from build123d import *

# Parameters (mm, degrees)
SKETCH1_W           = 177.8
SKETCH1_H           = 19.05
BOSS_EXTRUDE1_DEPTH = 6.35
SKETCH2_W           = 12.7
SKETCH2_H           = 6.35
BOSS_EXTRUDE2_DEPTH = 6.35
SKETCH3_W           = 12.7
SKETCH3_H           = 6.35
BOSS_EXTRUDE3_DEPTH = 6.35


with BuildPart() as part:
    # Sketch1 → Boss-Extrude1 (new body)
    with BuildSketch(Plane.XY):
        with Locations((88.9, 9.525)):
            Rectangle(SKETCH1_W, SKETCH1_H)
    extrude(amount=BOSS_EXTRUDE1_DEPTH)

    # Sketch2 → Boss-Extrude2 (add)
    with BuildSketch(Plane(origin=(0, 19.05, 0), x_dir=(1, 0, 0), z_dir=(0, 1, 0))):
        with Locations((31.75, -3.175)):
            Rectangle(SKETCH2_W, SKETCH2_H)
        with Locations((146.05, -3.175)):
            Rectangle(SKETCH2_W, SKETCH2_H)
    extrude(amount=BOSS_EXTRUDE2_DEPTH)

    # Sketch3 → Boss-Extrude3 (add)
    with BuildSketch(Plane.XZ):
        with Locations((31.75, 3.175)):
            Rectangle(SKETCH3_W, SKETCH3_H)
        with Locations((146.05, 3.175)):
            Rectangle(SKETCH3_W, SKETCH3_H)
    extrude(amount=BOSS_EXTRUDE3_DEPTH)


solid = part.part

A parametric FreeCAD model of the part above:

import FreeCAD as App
import Part
import Sketcher

V = App.Vector
Q = App.Units.Quantity

doc = App.newDocument("Part")
body = doc.addObject("PartDesign::Body", "Body")

sketch1 = body.newObject("Sketcher::SketchObject", "Sketch")
sketch1.AttachmentSupport = (doc.getObject("XY_Plane"), [""])
sketch1.MapMode = "FlatFace"
sketch1.addGeometry(Part.LineSegment(V(0, 19, 0), V(0, 0, 0)), False)
sketch1.addGeometry(Part.LineSegment(V(0, 0, 0), V(178, 0, 0)), False)
sketch1.addGeometry(Part.LineSegment(V(178, 0, 0), V(178, 19, 0)), False)
sketch1.addGeometry(Part.LineSegment(V(178, 19, 0), V(0, 19, 0)), False)
sketch1.addConstraint(Sketcher.Constraint("Coincident", 0, 2, 1, 1))
sketch1.addConstraint(Sketcher.Constraint("Coincident", 1, 2, 2, 1))
sketch1.addConstraint(Sketcher.Constraint("Coincident", 2, 2, 3, 1))
sketch1.addConstraint(Sketcher.Constraint("Coincident", 3, 2, 0, 1))
sketch1.addConstraint(Sketcher.Constraint("Vertical", 0))
sketch1.addConstraint(Sketcher.Constraint("Horizontal", 1))
sketch1.addConstraint(Sketcher.Constraint("Vertical", 2))
sketch1.addConstraint(Sketcher.Constraint("Horizontal", 3))
sketch1.addConstraint(Sketcher.Constraint("Coincident", 0, 2, -1, 1))
sketch1.addConstraint(Sketcher.Constraint("DistanceX", 1, 1, 1, 2, Q("7 in")))
sketch1.addConstraint(Sketcher.Constraint("DistanceY", 0, 2, 0, 1, Q("0.75 in")))
pad1 = body.newObject("PartDesign::Pad", "Pad")
pad1.Profile = sketch1
pad1.Length = Q("0.25 in")

sketch2 = body.newObject("Sketcher::SketchObject", "Sketch001")
sketch2.AttachmentSupport = (doc.getObject("XZ_Plane"), [""])
sketch2.MapMode = "FlatFace"
sketch2.AttachmentOffset = App.Placement(V(0, 0, -0.75 * 25.4), App.Rotation())
sketch2.addGeometry(Part.LineSegment(V(25, 0, 0), V(25, 6, 0)), False)
sketch2.addGeometry(Part.LineSegment(V(25, 6, 0), V(38, 6, 0)), False)
sketch2.addGeometry(Part.LineSegment(V(38, 6, 0), V(38, 0, 0)), False)
sketch2.addGeometry(Part.LineSegment(V(38, 0, 0), V(25, 0, 0)), False)
sketch2.addGeometry(Part.LineSegment(V(140, 0, 0), V(140, 6, 0)), False)
sketch2.addGeometry(Part.LineSegment(V(140, 6, 0), V(152, 6, 0)), False)
sketch2.addGeometry(Part.LineSegment(V(152, 6, 0), V(152, 0, 0)), False)
sketch2.addGeometry(Part.LineSegment(V(152, 0, 0), V(140, 0, 0)), False)
sketch2.addConstraint(Sketcher.Constraint("Coincident", 0, 2, 1, 1))
sketch2.addConstraint(Sketcher.Constraint("Coincident", 1, 2, 2, 1))
sketch2.addConstraint(Sketcher.Constraint("Coincident", 2, 2, 3, 1))
sketch2.addConstraint(Sketcher.Constraint("Coincident", 3, 2, 0, 1))
sketch2.addConstraint(Sketcher.Constraint("Coincident", 4, 2, 5, 1))
sketch2.addConstraint(Sketcher.Constraint("Coincident", 5, 2, 6, 1))
sketch2.addConstraint(Sketcher.Constraint("Coincident", 6, 2, 7, 1))
sketch2.addConstraint(Sketcher.Constraint("Coincident", 7, 2, 4, 1))
sketch2.addConstraint(Sketcher.Constraint("Vertical", 0))
sketch2.addConstraint(Sketcher.Constraint("Horizontal", 1))
sketch2.addConstraint(Sketcher.Constraint("Vertical", 2))
sketch2.addConstraint(Sketcher.Constraint("Horizontal", 3))
sketch2.addConstraint(Sketcher.Constraint("Vertical", 4))
sketch2.addConstraint(Sketcher.Constraint("Horizontal", 5))
sketch2.addConstraint(Sketcher.Constraint("Vertical", 6))
sketch2.addConstraint(Sketcher.Constraint("Horizontal", 7))
sketch2.addConstraint(Sketcher.Constraint("PointOnObject", 2, 2, -1))
sketch2.addConstraint(Sketcher.Constraint("PointOnObject", 6, 2, -1))
sketch2.addConstraint(Sketcher.Constraint("Horizontal", 1, 2, 4, 2))
sketch2.addConstraint(Sketcher.Constraint("Equal", 3, 5))
sketch2.addConstraint(Sketcher.Constraint("DistanceX", 1, 1, 1, 2, Q("0.5 in")))
sketch2.addConstraint(Sketcher.Constraint("DistanceX", -1, 1, 0, 2, Q("1 in")))
sketch2.addConstraint(Sketcher.Constraint("DistanceX", -1, 1, 5, 2, Q("6 in")))
sketch2.addConstraint(Sketcher.Constraint("DistanceY", 0, 1, 0, 2, Q("0.25 in")))
pad2 = body.newObject("PartDesign::Pad", "Pad001")
pad2.Profile = sketch2
pad2.Length = Q("0.25 in")
pad2.Reversed = True

sketch3 = body.newObject("Sketcher::SketchObject", "Sketch002")
sketch3.AttachmentSupport = (doc.getObject("XZ_Plane"), [""])
sketch3.MapMode = "FlatFace"
sketch3.addGeometry(Part.LineSegment(V(25, 6, 0), V(25, 0, 0)), False)
sketch3.addGeometry(Part.LineSegment(V(25, 0, 0), V(38, 0, 0)), False)
sketch3.addGeometry(Part.LineSegment(V(38, 0, 0), V(38, 6, 0)), False)
sketch3.addGeometry(Part.LineSegment(V(38, 6, 0), V(25, 6, 0)), False)
sketch3.addGeometry(Part.LineSegment(V(140, 6, 0), V(140, 0, 0)), False)
sketch3.addGeometry(Part.LineSegment(V(140, 0, 0), V(152, 0, 0)), False)
sketch3.addGeometry(Part.LineSegment(V(152, 0, 0), V(152, 6, 0)), False)
sketch3.addGeometry(Part.LineSegment(V(152, 6, 0), V(140, 6, 0)), False)
sketch3.addConstraint(Sketcher.Constraint("Coincident", 0, 2, 1, 1))
sketch3.addConstraint(Sketcher.Constraint("Coincident", 1, 2, 2, 1))
sketch3.addConstraint(Sketcher.Constraint("Coincident", 2, 2, 3, 1))
sketch3.addConstraint(Sketcher.Constraint("Coincident", 3, 2, 0, 1))
sketch3.addConstraint(Sketcher.Constraint("Coincident", 4, 2, 5, 1))
sketch3.addConstraint(Sketcher.Constraint("Coincident", 5, 2, 6, 1))
sketch3.addConstraint(Sketcher.Constraint("Coincident", 6, 2, 7, 1))
sketch3.addConstraint(Sketcher.Constraint("Coincident", 7, 2, 4, 1))
sketch3.addConstraint(Sketcher.Constraint("Vertical", 0))
sketch3.addConstraint(Sketcher.Constraint("Horizontal", 1))
sketch3.addConstraint(Sketcher.Constraint("Vertical", 2))
sketch3.addConstraint(Sketcher.Constraint("Horizontal", 3))
sketch3.addConstraint(Sketcher.Constraint("Vertical", 4))
sketch3.addConstraint(Sketcher.Constraint("Horizontal", 5))
sketch3.addConstraint(Sketcher.Constraint("Vertical", 6))
sketch3.addConstraint(Sketcher.Constraint("Horizontal", 7))
sketch3.addConstraint(Sketcher.Constraint("PointOnObject", 0, 2, -1))
sketch3.addConstraint(Sketcher.Constraint("PointOnObject", 4, 2, -1))
sketch3.addConstraint(Sketcher.Constraint("Horizontal", 3, 2, 6, 2))
sketch3.addConstraint(Sketcher.Constraint("Equal", 3, 5))
sketch3.addConstraint(Sketcher.Constraint("DistanceX", 1, 1, 1, 2, Q("0.5 in")))
sketch3.addConstraint(Sketcher.Constraint("DistanceX", -1, 1, 0, 2, Q("1 in")))
sketch3.addConstraint(Sketcher.Constraint("DistanceX", -1, 1, 5, 2, Q("6 in")))
sketch3.addConstraint(Sketcher.Constraint("DistanceY", 0, 2, 0, 1, Q("0.25 in")))
pad3 = body.newObject("PartDesign::Pad", "Pad002")
pad3.Profile = sketch3
pad3.Length = Q("0.25 in")

doc.recompute()
